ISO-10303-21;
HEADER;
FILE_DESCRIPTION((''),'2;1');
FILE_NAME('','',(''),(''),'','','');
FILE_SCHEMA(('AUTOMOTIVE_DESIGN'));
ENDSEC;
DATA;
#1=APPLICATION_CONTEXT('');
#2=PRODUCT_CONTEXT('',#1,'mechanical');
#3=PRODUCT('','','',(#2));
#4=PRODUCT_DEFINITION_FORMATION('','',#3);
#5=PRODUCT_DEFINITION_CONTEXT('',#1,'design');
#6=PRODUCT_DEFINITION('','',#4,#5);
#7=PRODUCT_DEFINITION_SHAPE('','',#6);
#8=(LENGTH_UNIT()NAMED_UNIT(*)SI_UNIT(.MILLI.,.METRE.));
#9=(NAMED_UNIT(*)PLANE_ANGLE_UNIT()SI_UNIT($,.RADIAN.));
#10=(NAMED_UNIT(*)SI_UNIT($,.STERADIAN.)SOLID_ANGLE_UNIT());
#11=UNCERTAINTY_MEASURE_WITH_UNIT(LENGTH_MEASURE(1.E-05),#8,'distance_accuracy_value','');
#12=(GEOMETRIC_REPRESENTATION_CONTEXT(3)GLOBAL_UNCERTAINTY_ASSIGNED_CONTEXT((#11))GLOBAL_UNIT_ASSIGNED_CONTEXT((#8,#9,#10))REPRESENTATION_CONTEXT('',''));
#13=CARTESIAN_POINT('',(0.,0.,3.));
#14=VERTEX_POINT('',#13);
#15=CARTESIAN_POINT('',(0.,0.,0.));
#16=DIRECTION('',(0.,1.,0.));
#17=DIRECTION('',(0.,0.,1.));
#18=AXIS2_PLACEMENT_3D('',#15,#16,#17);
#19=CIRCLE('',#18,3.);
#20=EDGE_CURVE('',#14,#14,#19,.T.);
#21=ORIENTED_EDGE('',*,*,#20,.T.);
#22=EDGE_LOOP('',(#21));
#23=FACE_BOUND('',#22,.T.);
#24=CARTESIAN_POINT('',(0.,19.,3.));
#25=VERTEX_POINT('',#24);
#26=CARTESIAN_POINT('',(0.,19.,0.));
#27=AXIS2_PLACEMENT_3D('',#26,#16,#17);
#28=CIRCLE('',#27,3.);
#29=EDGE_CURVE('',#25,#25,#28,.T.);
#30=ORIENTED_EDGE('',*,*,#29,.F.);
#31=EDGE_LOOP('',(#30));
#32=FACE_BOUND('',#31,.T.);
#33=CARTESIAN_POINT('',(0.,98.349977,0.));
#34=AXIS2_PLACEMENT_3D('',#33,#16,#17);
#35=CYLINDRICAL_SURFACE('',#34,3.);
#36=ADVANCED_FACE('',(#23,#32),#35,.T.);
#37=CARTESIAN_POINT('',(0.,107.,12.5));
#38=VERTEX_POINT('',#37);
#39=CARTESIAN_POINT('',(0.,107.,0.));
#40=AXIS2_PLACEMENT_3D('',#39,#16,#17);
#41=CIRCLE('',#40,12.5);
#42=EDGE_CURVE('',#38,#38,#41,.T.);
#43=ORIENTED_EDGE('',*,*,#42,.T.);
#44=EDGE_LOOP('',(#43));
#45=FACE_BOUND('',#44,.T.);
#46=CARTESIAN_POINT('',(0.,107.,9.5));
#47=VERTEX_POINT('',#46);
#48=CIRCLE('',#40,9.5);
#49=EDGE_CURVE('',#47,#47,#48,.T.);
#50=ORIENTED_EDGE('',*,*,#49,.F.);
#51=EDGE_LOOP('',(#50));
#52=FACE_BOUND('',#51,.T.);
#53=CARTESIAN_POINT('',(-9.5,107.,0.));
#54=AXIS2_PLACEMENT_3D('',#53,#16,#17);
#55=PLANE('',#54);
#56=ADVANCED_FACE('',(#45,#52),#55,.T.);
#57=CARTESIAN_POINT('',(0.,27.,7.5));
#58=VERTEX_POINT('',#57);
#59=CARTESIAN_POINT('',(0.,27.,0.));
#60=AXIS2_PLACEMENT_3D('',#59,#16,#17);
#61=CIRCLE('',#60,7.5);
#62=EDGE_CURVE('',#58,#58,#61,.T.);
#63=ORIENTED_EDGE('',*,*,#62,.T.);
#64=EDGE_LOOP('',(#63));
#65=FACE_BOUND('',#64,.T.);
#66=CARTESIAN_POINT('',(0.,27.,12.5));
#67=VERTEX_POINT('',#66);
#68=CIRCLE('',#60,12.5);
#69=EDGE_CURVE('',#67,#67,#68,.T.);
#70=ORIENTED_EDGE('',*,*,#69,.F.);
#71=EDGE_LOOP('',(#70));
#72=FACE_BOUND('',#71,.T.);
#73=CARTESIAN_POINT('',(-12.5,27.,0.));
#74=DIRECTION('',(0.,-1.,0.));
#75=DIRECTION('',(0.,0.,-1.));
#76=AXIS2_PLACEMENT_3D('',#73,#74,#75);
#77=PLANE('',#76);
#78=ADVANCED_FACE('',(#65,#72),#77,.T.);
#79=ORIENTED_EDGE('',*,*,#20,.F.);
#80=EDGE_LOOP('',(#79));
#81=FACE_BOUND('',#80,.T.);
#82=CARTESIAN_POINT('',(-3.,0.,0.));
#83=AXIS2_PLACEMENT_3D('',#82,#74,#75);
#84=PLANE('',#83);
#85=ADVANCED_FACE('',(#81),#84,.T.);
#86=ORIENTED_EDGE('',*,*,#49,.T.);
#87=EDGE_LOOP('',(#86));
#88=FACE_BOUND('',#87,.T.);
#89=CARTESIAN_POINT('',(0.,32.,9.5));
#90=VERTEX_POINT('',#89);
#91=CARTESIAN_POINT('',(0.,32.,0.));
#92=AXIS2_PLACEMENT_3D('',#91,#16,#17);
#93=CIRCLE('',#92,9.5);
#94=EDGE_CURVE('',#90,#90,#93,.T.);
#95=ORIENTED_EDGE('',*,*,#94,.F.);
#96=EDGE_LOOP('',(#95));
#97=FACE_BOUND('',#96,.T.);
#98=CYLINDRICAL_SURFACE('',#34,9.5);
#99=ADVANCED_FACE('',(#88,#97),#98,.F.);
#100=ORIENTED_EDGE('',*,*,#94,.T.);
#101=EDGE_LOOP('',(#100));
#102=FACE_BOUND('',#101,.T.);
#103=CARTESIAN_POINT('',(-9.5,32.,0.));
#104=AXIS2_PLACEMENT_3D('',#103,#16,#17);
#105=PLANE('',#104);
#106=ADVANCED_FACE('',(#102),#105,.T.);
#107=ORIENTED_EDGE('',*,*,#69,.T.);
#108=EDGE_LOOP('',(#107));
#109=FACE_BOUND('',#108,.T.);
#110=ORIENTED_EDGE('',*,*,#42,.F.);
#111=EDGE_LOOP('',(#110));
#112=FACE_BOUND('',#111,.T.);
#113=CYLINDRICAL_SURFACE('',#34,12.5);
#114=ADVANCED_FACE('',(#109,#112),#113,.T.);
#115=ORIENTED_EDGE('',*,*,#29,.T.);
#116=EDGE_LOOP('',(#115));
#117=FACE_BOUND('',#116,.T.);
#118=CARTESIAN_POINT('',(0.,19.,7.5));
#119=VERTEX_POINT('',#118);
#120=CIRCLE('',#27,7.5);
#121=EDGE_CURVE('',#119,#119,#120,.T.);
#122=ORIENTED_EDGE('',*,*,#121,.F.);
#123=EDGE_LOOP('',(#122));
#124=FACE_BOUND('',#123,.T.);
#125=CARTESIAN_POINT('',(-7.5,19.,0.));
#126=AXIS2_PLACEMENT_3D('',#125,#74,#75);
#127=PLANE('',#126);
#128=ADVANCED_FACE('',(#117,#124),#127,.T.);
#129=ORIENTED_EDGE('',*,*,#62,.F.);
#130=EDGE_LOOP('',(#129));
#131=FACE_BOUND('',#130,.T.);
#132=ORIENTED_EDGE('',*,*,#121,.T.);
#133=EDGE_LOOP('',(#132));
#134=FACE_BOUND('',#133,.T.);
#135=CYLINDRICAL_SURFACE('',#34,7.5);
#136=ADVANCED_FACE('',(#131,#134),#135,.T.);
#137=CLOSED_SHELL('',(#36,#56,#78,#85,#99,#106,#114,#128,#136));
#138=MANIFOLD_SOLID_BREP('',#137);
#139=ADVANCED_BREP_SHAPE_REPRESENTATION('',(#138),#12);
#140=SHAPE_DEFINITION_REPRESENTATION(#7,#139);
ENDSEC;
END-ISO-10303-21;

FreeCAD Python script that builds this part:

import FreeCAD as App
import Part
import Sketcher
from FreeCAD import Vector

doc = App.newDocument("Part")
body = doc.addObject("PartDesign::Body", "Body")

# Sketch on XY plane
sketch1 = body.newObject("Sketcher::SketchObject", "Sketch")
sketch1.AttachmentSupport = (doc.getObject("XY_Plane"), [""])
sketch1.MapMode = "FlatFace"
sketch1.addGeometry([
    Part.LineSegment(Vector(-12.5, 107, 0), Vector(-12.5, 27, 0)),  # 0
    Part.LineSegment(Vector(-12.5, 27, 0), Vector(-7.5, 27, 0)),  # 1
    Part.LineSegment(Vector(-7.5, 27, 0), Vector(-7.5, 19, 0)),  # 2
    Part.LineSegment(Vector(-7.5, 19, 0), Vector(-3, 19, 0)),  # 3
    Part.LineSegment(Vector(-3, 19, 0), Vector(-3, 0, 0)),  # 4
    Part.LineSegment(Vector(-3, 0, 0), Vector(0, 0, 0)),  # 5
    Part.LineSegment(Vector(0, 0, 0), Vector(0, 32, 0)),  # 6
    Part.LineSegment(Vector(0, 32, 0), Vector(-9.5, 32, 0)),  # 7
    Part.LineSegment(Vector(-9.5, 32, 0), Vector(-9.5, 107, 0)),  # 8
    Part.LineSegment(Vector(-9.5, 107, 0), Vector(-12.5, 107, 0)),  # 9
], False)
sketch1.addConstraint([
    Sketcher.Constraint("Coincident", 0, 2, 1, 1),
    Sketcher.Constraint("Coincident", 1, 2, 2, 1),
    Sketcher.Constraint("Coincident", 2, 2, 3, 1),
    Sketcher.Constraint("Coincident", 3, 2, 4, 1),
    Sketcher.Constraint("Coincident", 4, 2, 5, 1),
    Sketcher.Constraint("Coincident", 5, 2, 6, 1),
    Sketcher.Constraint("Coincident", 6, 2, 7, 1),
    Sketcher.Constraint("Coincident", 7, 2, 8, 1),
    Sketcher.Constraint("Coincident", 8, 2, 9, 1),
    Sketcher.Constraint("Coincident", 9, 2, 0, 1),
    Sketcher.Constraint("Vertical", 0),
    Sketcher.Constraint("Horizontal", 1),
    Sketcher.Constraint("Vertical", 2),
    Sketcher.Constraint("Horizontal", 3),
    Sketcher.Constraint("Vertical", 4),
    Sketcher.Constraint("Horizontal", 5),
    Sketcher.Constraint("Vertical", 6),
    Sketcher.Constraint("Horizontal", 7),
    Sketcher.Constraint("Vertical", 8),
    Sketcher.Constraint("Horizontal", 9),
    Sketcher.Constraint("Coincident", 5, 2, -1, 1),
    Sketcher.Constraint("Equal", 5, 9),
    Sketcher.Constraint("DistanceX", 1, 1, 1, 2, 5.0),
    Sketcher.Constraint("DistanceX", 5, 1, 5, 2, 3.0),
    Sketcher.Constraint("DistanceY", 0, 2, 0, 1, 80.0),
    Sketcher.Constraint("DistanceY", 2, 2, 2, 1, 8.0),
    Sketcher.Constraint("DistanceY", 4, 2, 4, 1, 19.0),
    Sketcher.Constraint("DistanceY", 6, 1, 6, 2, 32.0),
    Sketcher.Constraint("DistanceX", 3, 1, 3, 2, 4.5),
])
revolution = body.newObject("PartDesign::Revolution", "Revolution")
revolution.Profile = sketch1
revolution.ReferenceAxis = (sketch1, ["V_Axis"])
revolution.Angle = 360

doc.recompute()
